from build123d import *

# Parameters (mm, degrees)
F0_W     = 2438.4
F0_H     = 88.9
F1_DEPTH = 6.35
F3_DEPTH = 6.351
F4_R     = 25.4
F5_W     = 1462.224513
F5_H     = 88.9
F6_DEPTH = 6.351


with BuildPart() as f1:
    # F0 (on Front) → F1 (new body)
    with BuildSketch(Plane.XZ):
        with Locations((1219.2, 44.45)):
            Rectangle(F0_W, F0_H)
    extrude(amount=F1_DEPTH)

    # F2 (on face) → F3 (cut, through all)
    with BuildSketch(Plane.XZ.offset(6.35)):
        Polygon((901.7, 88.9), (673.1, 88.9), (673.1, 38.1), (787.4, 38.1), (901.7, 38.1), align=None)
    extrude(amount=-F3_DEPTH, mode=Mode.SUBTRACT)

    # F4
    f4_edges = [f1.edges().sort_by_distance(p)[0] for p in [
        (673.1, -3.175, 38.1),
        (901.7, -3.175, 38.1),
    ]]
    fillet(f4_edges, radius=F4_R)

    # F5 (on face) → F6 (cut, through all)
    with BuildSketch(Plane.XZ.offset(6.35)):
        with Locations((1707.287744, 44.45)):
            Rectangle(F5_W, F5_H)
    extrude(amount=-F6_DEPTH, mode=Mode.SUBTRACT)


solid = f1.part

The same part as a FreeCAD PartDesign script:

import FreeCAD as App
import Part
import Sketcher
from FreeCAD import Vector
Q = App.Units.Quantity


def edges_at(feature, points):
    """Names of the edges that pass closest to the given points."""
    edges = feature.Shape.Edges
    near = lambda p: min(range(len(edges)), key=lambda i: edges[i].distToShape(Part.Vertex(*p))[0])
    return sorted({f"Edge{near(p) + 1}" for p in points})


def add_polygon(sketch, points):
    """Adds a closed chain of lines whose ends are joined by coincident constraints."""
    first, n = sketch.GeometryCount, len(points)
    for a, b in zip(points, points[1:] + points[:1]):
        sketch.addGeometry(Part.LineSegment(App.Vector(*a, 0), App.Vector(*b, 0)), False)
    for i in range(n):
        sketch.addConstraint(Sketcher.Constraint("Coincident", first + i, 2, first + (i + 1) % n, 1))

doc = App.newDocument("Part")
body = doc.addObject("PartDesign::Body", "Body")

sketch1 = body.newObject("Sketcher::SketchObject", "Sketch")
sketch1.AttachmentSupport = (doc.getObject("XZ_Plane"), [""])
sketch1.MapMode = "FlatFace"
add_polygon(sketch1, [(0, 88.9), (0, 0), (2438.4, 0), (2438.4, 88.9)])
sketch1.addConstraint([
    Sketcher.Constraint("Vertical", 0),
    Sketcher.Constraint("Horizontal", 1),
    Sketcher.Constraint("Vertical", 2),
    Sketcher.Constraint("Horizontal", 3),
    Sketcher.Constraint("Coincident", 0, 2, -1, 1),
    Sketcher.Constraint("DistanceX", 1, 1, 1, 2, Q("96 in")),
    Sketcher.Constraint("DistanceY", 0, 2, 0, 1, Q("3.5 in")),
])
pad1 = body.newObject("PartDesign::Pad", "Pad")
pad1.Profile = sketch1
pad1.Length = Q("0.25 in")

sketch2 = body.newObject("Sketcher::SketchObject", "Sketch001")
sketch2.AttachmentSupport = (doc.getObject("XZ_Plane"), [""])
sketch2.MapMode = "FlatFace"
sketch2.AttachmentOffset = App.Placement(Vector(0, 0, 0.25 * 25.4), App.Rotation())
add_polygon(sketch2, [(901.7, 88.9), (673.1, 88.9), (673.1, 38.1), (901.7, 38.1)])
sketch2.addConstraint([
    Sketcher.Constraint("Horizontal", 0),
    Sketcher.Constraint("Vertical", 1),
    Sketcher.Constraint("Horizontal", 2),
    Sketcher.Constraint("Vertical", 3),
    Sketcher.Constraint("DistanceX", 0, 2, 0, 1, Q("9 in")),
    Sketcher.Constraint("DistanceY", 1, 2, 1, 1, Q("2 in")),
    Sketcher.Constraint("DistanceX", -1, 1, 0, 2, Q("26.5 in")),
    Sketcher.Constraint("DistanceY", -1, 1, 0, 2, Q("3.5 in")),
])
pocket1 = body.newObject("PartDesign::Pocket", "Pocket")
pocket1.Profile = sketch2
pocket1.Type = "ThroughAll"
doc.recompute()

fillet = body.newObject("PartDesign::Fillet", "Fillet")
fillet.Base = (pocket1, edges_at(pocket1, [(673.1, -3.175, 38.1), (901.7, -3.175, 38.1)]))
fillet.Radius = Q("1 in")

sketch3 = body.newObject("Sketcher::SketchObject", "Sketch002")
sketch3.AttachmentSupport = (doc.getObject("XZ_Plane"), [""])
sketch3.MapMode = "FlatFace"
sketch3.AttachmentOffset = App.Placement(Vector(0, 0, 0.25 * 25.4), App.Rotation())
add_polygon(sketch3, [(976.175488, 88.9), (976.175488, 0), (2438.4, 0), (2438.4, 88.9)])
sketch3.addConstraint([
    Sketcher.Constraint("Vertical", 0),
    Sketcher.Constraint("Horizontal", 1),
    Sketcher.Constraint("Vertical", 2),
    Sketcher.Constraint("Horizontal", 3),
    Sketcher.Constraint("PointOnObject", 0, 2, -1),
    Sketcher.Constraint("DistanceY", 0, 2, 0, 1, Q("3.5 in")),
    Sketcher.Constraint("DistanceX", -1, 1, 1, 2, Q("96 in")),
    Sketcher.Constraint("DistanceX", 1, 1, 1, 2, 1462.224513),
])
pocket2 = body.newObject("PartDesign::Pocket", "Pocket001")
pocket2.Profile = sketch3
pocket2.Type = "ThroughAll"

doc.recompute()
